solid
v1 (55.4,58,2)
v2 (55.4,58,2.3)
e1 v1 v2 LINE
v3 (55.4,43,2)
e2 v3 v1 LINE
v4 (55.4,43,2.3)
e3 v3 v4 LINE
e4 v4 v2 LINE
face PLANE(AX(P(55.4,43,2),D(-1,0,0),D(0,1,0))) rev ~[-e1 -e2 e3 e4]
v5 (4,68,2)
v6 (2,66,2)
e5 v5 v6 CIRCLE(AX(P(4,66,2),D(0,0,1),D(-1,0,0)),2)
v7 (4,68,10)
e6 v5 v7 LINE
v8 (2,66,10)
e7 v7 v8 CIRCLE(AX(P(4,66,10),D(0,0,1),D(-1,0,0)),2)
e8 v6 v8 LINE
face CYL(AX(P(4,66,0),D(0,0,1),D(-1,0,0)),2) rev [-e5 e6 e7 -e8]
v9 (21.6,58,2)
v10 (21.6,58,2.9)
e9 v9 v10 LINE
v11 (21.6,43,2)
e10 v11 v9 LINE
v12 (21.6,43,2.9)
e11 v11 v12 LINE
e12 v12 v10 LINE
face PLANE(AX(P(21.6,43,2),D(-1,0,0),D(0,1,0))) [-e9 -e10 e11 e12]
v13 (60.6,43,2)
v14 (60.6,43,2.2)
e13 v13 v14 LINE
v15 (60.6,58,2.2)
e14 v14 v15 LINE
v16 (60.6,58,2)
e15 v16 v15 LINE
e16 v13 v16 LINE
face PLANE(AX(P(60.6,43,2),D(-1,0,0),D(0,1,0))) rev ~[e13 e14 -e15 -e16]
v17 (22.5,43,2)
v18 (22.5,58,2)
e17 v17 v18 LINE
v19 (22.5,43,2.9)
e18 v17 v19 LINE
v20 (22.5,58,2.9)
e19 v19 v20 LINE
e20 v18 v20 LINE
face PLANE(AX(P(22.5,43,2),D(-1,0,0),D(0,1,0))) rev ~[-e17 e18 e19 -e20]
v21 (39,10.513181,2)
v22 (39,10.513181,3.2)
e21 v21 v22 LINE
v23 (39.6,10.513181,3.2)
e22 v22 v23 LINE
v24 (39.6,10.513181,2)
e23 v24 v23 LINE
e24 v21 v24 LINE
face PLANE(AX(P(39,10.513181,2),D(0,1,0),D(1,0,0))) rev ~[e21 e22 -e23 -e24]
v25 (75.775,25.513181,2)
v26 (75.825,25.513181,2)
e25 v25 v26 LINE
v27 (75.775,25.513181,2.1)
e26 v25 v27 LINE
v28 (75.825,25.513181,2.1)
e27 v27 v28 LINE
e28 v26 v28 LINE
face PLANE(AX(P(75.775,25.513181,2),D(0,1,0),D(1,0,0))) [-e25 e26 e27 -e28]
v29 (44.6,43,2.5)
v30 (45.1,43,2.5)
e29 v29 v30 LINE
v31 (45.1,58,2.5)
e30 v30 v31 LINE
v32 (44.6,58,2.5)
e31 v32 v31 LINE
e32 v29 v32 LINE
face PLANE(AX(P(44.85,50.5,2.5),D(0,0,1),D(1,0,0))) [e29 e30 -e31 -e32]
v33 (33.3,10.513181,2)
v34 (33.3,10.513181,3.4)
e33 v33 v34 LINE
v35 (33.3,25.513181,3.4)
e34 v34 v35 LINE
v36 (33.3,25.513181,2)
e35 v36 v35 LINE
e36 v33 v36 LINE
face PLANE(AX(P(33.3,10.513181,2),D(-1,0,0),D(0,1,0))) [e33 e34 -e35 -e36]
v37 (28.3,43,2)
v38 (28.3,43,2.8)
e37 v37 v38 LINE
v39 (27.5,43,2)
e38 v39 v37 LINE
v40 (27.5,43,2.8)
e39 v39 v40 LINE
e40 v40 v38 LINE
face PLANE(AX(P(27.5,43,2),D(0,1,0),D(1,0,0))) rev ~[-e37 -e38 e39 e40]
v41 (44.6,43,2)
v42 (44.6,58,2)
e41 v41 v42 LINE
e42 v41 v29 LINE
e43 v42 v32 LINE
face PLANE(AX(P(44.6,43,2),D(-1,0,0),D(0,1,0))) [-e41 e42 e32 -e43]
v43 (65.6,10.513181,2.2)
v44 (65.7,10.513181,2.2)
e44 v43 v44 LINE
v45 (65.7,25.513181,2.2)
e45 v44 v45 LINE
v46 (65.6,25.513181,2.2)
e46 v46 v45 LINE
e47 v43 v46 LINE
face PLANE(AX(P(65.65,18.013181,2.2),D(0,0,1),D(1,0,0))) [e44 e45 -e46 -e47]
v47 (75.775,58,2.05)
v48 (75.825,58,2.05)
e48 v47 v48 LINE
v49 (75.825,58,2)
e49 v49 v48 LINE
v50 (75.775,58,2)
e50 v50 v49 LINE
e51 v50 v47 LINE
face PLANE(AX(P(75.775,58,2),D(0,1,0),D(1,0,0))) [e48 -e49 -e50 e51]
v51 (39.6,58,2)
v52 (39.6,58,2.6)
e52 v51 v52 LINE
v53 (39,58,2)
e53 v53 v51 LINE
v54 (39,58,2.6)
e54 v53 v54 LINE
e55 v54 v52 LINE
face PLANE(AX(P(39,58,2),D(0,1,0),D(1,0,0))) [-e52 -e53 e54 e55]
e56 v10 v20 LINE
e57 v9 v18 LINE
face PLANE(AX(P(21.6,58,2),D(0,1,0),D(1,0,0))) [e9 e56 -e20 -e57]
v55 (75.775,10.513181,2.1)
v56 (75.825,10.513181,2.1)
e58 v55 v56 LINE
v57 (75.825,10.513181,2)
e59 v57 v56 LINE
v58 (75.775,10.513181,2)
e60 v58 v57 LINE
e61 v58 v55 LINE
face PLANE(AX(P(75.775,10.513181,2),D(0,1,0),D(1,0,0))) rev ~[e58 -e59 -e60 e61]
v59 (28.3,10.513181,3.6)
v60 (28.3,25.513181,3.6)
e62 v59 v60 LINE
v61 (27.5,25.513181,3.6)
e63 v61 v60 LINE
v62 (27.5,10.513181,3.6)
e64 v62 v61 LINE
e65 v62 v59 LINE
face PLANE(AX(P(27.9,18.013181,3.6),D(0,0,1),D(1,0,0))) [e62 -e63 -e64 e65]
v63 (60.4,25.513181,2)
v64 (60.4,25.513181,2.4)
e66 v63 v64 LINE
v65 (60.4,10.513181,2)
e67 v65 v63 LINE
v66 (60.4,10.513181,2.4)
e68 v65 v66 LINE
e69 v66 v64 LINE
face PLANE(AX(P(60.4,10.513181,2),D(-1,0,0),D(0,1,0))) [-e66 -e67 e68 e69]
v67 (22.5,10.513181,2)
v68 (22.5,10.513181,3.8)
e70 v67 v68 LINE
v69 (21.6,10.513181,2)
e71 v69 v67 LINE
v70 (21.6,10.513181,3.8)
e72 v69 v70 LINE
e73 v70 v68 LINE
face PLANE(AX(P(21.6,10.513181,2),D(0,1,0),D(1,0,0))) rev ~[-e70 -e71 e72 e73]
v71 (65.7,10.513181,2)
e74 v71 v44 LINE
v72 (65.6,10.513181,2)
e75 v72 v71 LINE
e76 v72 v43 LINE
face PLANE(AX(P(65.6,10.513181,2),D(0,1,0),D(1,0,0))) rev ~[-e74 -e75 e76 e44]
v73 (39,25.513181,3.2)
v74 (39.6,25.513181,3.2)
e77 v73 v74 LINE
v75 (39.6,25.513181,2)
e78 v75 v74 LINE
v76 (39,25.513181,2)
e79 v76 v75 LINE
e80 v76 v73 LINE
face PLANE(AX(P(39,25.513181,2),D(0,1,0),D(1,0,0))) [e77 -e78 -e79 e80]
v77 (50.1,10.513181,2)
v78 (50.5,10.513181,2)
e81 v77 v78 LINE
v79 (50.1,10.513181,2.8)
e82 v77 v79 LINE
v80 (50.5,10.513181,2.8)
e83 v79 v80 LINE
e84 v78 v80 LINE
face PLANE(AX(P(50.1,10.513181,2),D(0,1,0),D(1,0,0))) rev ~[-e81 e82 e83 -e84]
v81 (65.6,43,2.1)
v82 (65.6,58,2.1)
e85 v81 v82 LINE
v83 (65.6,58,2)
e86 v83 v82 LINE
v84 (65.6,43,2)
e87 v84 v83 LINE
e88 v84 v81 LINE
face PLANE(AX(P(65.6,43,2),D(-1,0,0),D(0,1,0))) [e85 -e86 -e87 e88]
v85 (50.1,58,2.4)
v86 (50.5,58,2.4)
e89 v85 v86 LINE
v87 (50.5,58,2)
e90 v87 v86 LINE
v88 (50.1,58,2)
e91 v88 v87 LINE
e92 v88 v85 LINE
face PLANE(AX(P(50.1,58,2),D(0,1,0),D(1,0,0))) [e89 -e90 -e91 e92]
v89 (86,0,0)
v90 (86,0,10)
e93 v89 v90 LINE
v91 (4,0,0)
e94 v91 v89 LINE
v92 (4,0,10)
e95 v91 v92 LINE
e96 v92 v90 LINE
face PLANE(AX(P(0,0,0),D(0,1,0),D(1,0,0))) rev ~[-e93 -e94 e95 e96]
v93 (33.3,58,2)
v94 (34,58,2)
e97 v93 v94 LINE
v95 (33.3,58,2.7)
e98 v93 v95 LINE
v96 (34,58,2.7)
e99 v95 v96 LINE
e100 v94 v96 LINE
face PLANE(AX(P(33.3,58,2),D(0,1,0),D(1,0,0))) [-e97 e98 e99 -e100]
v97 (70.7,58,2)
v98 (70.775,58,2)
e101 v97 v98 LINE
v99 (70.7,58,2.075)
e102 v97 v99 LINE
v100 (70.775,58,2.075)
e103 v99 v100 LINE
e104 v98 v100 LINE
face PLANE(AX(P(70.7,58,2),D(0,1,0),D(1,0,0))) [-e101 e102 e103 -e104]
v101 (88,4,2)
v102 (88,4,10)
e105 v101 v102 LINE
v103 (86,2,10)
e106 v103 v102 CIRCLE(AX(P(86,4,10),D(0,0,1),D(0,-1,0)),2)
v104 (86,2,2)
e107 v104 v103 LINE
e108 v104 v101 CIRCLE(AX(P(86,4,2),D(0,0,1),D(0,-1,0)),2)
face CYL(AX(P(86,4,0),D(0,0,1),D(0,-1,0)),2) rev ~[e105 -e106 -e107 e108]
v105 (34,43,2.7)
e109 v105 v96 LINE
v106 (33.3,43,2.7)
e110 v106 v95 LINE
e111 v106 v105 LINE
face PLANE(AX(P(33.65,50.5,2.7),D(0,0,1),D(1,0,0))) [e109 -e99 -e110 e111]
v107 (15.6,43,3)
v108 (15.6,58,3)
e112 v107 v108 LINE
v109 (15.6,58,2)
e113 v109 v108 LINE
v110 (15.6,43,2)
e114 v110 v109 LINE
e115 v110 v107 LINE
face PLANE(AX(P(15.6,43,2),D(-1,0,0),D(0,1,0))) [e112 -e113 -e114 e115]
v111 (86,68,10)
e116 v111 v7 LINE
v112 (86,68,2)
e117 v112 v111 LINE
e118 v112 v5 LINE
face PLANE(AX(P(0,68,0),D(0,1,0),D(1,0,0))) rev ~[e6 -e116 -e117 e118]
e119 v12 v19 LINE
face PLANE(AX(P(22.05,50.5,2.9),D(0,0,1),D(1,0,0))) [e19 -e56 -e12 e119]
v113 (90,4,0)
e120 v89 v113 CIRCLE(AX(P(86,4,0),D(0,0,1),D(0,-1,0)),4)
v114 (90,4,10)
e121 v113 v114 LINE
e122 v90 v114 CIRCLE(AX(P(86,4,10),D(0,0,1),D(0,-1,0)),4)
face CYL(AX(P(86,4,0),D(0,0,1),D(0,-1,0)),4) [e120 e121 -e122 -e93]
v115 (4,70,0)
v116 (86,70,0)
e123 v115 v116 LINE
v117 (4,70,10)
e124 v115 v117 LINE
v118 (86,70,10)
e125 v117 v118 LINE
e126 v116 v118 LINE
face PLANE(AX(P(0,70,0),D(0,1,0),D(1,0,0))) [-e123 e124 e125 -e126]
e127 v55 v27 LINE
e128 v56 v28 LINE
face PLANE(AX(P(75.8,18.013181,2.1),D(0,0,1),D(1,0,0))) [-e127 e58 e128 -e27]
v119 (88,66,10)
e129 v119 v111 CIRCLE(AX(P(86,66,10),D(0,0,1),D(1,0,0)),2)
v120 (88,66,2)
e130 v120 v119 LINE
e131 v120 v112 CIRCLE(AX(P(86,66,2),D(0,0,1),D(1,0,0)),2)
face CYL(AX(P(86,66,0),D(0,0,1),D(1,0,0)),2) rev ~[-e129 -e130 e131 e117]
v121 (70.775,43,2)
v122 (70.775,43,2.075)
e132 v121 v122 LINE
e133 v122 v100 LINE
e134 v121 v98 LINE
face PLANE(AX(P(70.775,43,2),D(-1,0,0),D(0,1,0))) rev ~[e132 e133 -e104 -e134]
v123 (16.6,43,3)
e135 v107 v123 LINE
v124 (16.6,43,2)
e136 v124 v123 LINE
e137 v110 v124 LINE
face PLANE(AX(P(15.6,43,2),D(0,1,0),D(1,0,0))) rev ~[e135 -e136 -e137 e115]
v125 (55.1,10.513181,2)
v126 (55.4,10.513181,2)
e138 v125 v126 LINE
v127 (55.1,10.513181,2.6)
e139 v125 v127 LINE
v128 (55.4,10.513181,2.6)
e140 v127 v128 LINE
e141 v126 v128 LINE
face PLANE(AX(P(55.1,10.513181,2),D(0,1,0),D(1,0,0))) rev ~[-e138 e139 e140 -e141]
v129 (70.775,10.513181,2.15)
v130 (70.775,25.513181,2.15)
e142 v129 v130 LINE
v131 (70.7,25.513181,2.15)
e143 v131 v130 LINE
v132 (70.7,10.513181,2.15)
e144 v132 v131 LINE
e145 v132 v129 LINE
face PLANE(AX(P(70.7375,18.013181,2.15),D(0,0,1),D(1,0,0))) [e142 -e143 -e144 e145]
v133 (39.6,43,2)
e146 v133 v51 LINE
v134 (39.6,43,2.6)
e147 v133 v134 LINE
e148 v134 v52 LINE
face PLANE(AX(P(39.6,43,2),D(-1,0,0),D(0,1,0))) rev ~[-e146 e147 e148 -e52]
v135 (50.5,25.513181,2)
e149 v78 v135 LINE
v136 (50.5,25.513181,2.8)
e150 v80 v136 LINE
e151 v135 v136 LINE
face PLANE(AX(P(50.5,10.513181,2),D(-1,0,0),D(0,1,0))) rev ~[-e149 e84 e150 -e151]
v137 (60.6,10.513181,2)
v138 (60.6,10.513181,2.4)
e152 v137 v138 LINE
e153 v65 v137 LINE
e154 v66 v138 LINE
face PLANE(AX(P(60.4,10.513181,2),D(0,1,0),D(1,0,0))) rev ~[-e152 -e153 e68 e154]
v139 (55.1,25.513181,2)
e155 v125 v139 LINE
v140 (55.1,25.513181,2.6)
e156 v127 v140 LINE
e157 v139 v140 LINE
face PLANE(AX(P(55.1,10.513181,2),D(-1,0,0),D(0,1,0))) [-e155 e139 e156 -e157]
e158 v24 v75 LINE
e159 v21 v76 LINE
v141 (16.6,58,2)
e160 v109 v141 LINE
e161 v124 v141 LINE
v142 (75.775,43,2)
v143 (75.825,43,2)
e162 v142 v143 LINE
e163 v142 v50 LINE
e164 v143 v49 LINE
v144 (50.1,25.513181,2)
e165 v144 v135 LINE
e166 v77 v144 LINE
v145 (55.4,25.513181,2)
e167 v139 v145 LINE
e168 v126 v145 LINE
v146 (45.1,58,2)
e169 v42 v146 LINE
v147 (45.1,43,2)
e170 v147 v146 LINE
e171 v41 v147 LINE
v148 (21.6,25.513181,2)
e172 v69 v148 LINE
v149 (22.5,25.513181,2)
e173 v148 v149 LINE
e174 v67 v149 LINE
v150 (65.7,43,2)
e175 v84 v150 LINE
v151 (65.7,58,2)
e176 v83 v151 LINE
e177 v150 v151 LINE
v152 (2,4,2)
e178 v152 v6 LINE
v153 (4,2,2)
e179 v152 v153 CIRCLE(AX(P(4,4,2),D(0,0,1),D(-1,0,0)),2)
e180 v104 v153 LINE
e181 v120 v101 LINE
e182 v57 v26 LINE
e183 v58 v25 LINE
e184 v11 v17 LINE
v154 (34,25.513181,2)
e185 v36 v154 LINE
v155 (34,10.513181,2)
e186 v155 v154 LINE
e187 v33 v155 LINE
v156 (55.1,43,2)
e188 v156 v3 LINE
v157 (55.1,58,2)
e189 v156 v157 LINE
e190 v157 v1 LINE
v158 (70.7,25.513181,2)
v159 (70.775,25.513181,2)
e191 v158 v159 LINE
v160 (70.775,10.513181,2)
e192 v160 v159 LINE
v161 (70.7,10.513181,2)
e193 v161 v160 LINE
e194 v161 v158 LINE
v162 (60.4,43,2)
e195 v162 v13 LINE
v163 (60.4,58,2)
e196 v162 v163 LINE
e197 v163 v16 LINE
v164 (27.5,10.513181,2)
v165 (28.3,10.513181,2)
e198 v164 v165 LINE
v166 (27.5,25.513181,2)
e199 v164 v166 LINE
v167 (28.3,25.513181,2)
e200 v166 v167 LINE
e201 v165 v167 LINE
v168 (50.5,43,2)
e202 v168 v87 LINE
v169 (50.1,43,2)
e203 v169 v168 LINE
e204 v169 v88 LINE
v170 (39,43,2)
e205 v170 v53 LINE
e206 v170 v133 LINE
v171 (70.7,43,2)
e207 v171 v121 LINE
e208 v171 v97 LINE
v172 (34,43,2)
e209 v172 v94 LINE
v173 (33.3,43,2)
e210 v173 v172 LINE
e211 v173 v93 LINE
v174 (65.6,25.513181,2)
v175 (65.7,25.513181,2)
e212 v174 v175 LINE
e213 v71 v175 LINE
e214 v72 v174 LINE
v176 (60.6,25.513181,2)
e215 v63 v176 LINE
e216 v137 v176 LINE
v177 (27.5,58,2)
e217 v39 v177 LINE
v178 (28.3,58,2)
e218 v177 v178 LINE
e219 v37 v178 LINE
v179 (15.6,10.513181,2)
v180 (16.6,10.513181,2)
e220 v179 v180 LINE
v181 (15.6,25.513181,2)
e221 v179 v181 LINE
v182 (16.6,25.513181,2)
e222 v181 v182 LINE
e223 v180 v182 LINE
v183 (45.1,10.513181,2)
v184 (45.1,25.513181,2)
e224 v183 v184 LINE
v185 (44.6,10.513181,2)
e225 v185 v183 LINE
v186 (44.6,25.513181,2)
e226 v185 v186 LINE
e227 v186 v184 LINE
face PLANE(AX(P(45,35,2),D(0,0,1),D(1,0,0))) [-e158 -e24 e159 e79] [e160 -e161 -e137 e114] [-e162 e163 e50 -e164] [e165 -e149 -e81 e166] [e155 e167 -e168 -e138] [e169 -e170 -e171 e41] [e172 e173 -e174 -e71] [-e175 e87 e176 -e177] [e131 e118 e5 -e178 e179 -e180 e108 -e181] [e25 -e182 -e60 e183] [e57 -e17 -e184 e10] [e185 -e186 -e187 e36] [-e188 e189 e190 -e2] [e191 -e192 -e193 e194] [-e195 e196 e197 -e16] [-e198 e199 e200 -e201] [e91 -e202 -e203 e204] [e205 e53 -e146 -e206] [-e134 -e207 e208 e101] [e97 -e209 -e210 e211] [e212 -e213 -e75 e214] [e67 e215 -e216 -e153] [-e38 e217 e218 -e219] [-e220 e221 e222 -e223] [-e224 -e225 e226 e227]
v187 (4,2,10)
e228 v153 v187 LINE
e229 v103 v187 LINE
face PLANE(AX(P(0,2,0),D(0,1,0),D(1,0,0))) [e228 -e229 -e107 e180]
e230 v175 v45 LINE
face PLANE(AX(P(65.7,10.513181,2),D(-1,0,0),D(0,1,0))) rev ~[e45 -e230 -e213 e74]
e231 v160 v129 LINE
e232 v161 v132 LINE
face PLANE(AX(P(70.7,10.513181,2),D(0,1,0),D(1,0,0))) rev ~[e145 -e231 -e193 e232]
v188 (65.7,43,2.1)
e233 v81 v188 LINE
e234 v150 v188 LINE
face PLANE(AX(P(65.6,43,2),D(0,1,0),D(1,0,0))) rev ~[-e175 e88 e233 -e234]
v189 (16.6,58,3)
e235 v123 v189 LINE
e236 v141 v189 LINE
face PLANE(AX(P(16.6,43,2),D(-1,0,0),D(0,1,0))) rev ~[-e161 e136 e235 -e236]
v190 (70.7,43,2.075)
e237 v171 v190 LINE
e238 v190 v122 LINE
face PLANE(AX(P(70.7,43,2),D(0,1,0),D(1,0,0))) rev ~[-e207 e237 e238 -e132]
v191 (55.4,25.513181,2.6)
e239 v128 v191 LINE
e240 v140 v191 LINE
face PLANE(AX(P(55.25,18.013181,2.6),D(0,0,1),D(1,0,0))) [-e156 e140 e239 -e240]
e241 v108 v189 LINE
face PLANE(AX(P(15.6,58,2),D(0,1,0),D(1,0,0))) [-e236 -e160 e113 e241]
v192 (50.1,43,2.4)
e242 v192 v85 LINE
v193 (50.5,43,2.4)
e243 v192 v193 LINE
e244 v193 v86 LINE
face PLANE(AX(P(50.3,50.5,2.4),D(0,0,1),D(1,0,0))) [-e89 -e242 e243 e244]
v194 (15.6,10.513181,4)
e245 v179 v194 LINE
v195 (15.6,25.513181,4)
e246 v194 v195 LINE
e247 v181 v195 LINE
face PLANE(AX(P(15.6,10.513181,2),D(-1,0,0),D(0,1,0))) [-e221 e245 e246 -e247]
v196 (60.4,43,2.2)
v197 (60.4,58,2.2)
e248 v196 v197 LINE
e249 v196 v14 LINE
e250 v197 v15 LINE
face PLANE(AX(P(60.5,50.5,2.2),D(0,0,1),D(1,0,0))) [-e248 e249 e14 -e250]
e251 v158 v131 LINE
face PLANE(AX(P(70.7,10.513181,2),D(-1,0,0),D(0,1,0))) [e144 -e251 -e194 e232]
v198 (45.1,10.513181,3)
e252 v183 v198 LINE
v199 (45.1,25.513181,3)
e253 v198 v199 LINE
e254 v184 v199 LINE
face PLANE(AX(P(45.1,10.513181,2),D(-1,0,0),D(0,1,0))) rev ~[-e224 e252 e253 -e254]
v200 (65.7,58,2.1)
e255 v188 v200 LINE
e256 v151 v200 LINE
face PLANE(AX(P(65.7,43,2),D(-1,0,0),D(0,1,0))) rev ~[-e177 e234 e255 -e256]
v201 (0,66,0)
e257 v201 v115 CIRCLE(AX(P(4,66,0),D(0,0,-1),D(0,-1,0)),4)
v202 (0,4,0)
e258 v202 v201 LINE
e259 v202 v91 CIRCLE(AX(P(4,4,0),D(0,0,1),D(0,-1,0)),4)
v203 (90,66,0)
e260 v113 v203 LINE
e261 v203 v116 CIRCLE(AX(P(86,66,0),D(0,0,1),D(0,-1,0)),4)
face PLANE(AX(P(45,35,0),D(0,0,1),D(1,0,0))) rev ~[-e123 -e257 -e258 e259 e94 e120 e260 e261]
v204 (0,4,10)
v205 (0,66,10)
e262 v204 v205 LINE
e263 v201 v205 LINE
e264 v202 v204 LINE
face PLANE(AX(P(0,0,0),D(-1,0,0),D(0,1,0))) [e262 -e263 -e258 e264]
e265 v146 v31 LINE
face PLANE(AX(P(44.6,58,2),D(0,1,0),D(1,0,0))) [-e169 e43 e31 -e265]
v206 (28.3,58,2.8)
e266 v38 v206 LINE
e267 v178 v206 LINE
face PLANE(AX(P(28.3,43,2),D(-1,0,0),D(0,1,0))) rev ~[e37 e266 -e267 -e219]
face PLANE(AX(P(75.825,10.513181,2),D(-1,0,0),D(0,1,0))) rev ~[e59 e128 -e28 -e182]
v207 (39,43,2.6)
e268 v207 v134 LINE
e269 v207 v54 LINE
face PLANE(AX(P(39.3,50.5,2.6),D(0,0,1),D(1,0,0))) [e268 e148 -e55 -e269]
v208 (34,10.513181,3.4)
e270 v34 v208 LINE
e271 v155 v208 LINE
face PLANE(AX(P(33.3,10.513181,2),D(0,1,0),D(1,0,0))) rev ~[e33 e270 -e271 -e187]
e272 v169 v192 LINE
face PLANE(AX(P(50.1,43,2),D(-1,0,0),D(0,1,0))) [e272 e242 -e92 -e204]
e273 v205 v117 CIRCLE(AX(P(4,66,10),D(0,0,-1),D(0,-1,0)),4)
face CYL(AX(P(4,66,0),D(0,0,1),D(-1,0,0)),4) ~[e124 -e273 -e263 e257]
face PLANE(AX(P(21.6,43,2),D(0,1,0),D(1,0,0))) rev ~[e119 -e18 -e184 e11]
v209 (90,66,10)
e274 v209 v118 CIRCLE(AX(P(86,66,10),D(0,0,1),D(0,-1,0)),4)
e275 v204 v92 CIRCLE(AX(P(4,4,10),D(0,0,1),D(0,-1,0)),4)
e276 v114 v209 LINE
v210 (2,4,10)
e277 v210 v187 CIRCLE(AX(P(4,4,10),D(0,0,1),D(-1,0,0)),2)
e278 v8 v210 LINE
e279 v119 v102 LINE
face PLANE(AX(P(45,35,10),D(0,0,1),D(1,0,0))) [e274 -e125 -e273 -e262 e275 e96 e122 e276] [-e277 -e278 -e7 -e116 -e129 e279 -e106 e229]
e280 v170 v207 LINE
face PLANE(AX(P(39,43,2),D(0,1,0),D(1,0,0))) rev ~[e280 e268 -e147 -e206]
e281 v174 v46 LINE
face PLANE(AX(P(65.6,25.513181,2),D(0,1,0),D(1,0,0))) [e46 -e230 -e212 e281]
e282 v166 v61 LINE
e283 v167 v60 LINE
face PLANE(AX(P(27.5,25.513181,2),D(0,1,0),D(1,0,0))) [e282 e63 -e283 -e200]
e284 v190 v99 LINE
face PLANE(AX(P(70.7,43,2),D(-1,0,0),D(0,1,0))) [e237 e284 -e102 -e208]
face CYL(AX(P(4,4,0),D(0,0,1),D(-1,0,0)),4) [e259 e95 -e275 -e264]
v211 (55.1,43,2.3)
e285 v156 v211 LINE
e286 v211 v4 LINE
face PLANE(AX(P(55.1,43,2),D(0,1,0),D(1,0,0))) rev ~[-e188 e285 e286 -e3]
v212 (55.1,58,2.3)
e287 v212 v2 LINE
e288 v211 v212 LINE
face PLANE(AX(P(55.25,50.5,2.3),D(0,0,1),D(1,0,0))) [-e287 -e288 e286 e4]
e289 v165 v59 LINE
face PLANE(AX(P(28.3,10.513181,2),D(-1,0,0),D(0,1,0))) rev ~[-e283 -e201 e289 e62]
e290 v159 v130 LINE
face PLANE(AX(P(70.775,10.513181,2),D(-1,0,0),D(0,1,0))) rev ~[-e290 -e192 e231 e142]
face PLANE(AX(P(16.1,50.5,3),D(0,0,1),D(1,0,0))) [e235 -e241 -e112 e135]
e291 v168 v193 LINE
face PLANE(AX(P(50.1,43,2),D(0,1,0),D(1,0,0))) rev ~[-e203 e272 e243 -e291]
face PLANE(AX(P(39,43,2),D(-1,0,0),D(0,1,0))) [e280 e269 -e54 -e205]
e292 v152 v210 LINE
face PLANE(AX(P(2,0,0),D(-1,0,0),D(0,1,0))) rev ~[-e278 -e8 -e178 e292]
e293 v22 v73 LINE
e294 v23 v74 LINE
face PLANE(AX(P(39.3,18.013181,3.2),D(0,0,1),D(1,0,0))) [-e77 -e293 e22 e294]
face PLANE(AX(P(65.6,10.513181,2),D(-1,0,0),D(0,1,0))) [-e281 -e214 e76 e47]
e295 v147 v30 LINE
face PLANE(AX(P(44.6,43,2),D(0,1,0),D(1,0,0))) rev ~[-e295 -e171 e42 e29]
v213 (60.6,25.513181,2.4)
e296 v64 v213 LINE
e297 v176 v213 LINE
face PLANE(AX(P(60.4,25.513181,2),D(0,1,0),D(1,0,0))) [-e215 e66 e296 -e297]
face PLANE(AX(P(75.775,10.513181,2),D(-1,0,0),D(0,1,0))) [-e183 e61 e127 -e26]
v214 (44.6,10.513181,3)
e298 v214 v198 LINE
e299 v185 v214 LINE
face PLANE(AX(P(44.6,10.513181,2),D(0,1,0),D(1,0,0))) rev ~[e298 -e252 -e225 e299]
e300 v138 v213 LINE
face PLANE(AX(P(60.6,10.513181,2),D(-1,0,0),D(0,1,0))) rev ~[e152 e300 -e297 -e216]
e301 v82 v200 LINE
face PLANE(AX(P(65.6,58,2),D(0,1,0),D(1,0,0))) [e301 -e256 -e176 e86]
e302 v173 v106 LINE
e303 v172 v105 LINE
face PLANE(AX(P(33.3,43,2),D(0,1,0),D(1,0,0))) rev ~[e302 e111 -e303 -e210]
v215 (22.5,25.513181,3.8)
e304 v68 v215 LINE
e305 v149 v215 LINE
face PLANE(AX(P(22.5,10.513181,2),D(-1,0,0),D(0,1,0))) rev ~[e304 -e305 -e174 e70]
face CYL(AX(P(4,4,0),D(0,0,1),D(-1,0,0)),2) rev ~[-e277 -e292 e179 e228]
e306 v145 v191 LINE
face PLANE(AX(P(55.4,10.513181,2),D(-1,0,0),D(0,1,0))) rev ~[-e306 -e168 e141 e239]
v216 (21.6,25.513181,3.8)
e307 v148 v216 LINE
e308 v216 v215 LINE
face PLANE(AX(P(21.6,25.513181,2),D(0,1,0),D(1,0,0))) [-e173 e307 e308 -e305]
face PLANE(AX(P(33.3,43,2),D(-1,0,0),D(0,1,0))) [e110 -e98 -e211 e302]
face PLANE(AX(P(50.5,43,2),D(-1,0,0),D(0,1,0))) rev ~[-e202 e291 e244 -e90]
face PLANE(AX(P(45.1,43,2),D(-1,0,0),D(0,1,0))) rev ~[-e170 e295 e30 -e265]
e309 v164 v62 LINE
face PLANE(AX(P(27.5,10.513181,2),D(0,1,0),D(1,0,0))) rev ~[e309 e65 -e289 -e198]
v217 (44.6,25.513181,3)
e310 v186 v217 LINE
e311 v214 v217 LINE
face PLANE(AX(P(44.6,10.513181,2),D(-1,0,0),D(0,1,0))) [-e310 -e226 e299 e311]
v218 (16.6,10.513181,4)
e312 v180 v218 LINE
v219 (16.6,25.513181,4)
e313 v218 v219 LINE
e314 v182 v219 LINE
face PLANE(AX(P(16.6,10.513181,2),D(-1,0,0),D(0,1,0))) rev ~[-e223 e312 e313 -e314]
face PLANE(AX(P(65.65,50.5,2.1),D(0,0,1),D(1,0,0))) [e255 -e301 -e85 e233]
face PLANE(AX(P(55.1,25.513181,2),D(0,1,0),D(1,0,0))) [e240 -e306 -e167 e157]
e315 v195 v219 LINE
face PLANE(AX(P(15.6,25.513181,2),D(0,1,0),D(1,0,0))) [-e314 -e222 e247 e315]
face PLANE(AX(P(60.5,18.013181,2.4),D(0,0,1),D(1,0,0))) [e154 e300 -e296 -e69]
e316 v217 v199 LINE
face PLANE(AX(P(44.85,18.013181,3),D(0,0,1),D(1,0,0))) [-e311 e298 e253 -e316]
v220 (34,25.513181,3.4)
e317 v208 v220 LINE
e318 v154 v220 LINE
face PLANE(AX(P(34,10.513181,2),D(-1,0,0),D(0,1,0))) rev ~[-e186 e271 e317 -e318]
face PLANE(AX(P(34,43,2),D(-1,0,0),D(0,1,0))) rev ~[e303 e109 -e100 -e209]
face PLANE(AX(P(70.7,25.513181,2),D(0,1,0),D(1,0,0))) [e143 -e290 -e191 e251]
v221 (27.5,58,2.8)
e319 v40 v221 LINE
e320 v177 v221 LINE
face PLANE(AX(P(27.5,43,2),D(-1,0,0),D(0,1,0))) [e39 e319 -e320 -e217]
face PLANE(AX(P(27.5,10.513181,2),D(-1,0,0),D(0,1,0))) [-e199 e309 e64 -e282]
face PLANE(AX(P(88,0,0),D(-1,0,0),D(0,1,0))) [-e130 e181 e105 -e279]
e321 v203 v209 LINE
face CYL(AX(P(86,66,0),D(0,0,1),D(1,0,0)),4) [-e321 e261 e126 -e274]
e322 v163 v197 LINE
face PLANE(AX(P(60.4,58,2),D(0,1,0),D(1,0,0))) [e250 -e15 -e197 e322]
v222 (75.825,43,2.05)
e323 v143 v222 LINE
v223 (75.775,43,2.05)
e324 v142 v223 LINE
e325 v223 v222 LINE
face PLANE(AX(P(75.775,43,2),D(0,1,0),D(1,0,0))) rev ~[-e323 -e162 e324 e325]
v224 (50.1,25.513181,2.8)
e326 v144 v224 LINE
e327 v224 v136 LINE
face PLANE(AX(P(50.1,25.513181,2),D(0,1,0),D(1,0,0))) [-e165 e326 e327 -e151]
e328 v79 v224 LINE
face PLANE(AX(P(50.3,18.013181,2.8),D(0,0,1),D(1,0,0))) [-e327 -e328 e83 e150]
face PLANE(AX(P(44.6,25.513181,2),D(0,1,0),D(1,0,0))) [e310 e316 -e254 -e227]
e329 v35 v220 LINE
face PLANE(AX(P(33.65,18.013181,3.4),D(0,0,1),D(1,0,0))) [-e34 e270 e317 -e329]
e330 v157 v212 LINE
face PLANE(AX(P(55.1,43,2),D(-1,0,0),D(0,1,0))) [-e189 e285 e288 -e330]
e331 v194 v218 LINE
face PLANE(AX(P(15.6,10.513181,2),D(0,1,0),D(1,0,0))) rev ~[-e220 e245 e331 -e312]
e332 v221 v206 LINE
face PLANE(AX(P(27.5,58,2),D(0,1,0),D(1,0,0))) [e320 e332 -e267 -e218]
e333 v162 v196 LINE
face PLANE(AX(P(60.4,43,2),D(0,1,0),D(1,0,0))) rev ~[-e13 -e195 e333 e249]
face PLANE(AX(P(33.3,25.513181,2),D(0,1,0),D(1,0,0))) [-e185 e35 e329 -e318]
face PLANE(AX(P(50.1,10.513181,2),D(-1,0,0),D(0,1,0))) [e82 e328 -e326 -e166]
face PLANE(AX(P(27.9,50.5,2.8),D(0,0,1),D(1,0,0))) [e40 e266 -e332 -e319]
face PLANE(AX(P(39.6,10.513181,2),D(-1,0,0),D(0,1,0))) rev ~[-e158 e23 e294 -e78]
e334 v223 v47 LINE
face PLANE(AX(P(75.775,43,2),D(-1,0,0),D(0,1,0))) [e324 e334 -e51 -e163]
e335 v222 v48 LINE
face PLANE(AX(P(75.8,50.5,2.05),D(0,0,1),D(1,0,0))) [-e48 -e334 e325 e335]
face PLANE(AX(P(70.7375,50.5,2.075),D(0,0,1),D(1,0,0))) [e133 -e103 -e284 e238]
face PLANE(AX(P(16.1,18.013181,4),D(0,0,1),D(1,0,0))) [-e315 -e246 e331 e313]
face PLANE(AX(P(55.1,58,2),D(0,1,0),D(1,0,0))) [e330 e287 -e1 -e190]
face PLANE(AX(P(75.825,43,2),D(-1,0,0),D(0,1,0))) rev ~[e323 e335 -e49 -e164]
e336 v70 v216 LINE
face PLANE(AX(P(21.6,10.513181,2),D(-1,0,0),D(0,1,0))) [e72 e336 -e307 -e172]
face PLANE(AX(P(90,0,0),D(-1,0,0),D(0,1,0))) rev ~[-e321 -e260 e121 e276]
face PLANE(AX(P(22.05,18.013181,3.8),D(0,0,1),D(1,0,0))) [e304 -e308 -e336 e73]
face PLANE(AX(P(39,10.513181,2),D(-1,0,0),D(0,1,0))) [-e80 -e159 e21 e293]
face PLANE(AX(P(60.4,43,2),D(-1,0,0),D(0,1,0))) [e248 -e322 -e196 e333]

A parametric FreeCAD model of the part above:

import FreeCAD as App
import Part
import Sketcher
Q = App.Units.Quantity


def edges_at(feature, points):
    """Names of the edges that pass closest to the given points."""
    edges = feature.Shape.Edges
    near = lambda p: min(range(len(edges)), key=lambda i: edges[i].distToShape(Part.Vertex(*p))[0])
    return sorted({f"Edge{near(p) + 1}" for p in points})


def faces_at(feature, points):
    """Names of the faces that lie closest to the given points."""
    faces = feature.Shape.Faces
    near = lambda p: min(range(len(faces)), key=lambda i: faces[i].distToShape(Part.Vertex(*p))[0])
    return sorted({f"Face{near(p) + 1}" for p in points})


def add_polygon(sketch, points):
    """Adds a closed chain of lines whose ends are joined by coincident constraints."""
    first, n = sketch.GeometryCount, len(points)
    for a, b in zip(points, points[1:] + points[:1]):
        sketch.addGeometry(Part.LineSegment(App.Vector(*a, 0), App.Vector(*b, 0)), False)
    for i in range(n):
        sketch.addConstraint(Sketcher.Constraint("Coincident", first + i, 2, first + (i + 1) % n, 1))

doc = App.newDocument("Part")
body = doc.addObject("PartDesign::Body", "Body")

# Sketch on XY plane
sketch1 = body.newObject("Sketcher::SketchObject", "Sketch")
sketch1.AttachmentSupport = (doc.getObject("XY_Plane"), [""])
sketch1.MapMode = "FlatFace"
add_polygon(sketch1, [(0, 70), (0, 0), (90, 0), (90, 70)])  # lines 0-3
sketch1.addConstraint([
    Sketcher.Constraint("Vertical", 0),
    Sketcher.Constraint("Horizontal", 1),
    Sketcher.Constraint("Vertical", 2),
    Sketcher.Constraint("Horizontal", 3),
    Sketcher.Constraint("Coincident", 0, 2, -1, 1),
    Sketcher.Constraint("DistanceX", 1, 1, 1, 2, Q("90 mm")),
    Sketcher.Constraint("DistanceY", 0, 2, 0, 1, Q("70 mm")),
])
pad1 = body.newObject("PartDesign::Pad", "Pad")
pad1.Profile = sketch1
pad1.Length = 10
doc.recompute()

fillet = body.newObject("PartDesign::Fillet", "Fillet")
fillet.Base = (pad1, edges_at(pad1, [
    (0, 70, 5),
    (90, 70, 5),
    (90, 0, 5),
    (0, 0, 5),
]))
fillet.Radius = 4
doc.recompute()

thickness = body.newObject("PartDesign::Thickness", "Thickness")
thickness.Base = (fillet, faces_at(fillet, [(45, 35, 10)]))
thickness.Value = 2
thickness.Reversed = True
thickness.Join = "Intersection"

# Sketch on XY plane
sketch2 = body.newObject("Sketcher::SketchObject", "Sketch001")
sketch2.AttachmentSupport = (doc.getObject("XY_Plane"), [""])
sketch2.MapMode = "FlatFace"
sketch2.AttachmentOffset = App.Placement(App.Vector(0, 0, 2), App.Rotation())
add_polygon(sketch2, [(15.6, 58), (15.6, 43), (16.6, 43), (16.6, 58)])  # lines 0-3
sketch2.addConstraint([
    Sketcher.Constraint("Vertical", 0),
    Sketcher.Constraint("Horizontal", 1),
    Sketcher.Constraint("Vertical", 2),
    Sketcher.Constraint("Horizontal", 3),
    Sketcher.Constraint("DistanceX", 1, 1, 1, 2, Q("1 mm")),
    Sketcher.Constraint("DistanceY", 0, 2, 0, 1, Q("15 mm")),
    Sketcher.Constraint("DistanceY", -1, 1, 0, 2, Q("43 mm")),
    Sketcher.Constraint("DistanceX", -1, 1, 0, 2, Q("15.6 mm")),
])
pad2 = body.newObject("PartDesign::Pad", "Pad001")
pad2.Profile = sketch2
pad2.Length = 1

# Sketch on XY plane
sketch3 = body.newObject("Sketcher::SketchObject", "Sketch002")
sketch3.AttachmentSupport = (doc.getObject("XY_Plane"), [""])
sketch3.MapMode = "FlatFace"
sketch3.AttachmentOffset = App.Placement(App.Vector(0, 0, 2), App.Rotation())
add_polygon(sketch3, [(21.6, 58), (21.6, 43), (22.5, 43), (22.5, 58)])  # lines 0-3
sketch3.addConstraint([
    Sketcher.Constraint("Vertical", 0),
    Sketcher.Constraint("Horizontal", 1),
    Sketcher.Constraint("Vertical", 2),
    Sketcher.Constraint("Horizontal", 3),
    Sketcher.Constraint("DistanceY", 0, 2, 0, 1, Q("15 mm")),
    Sketcher.Constraint("DistanceX", 1, 1, 1, 2, Q("0.9 mm")),
    Sketcher.Constraint("DistanceY", -1, 1, 0, 2, Q("43 mm")),
    Sketcher.Constraint("DistanceX", -1, 1, 0, 2, Q("21.6 mm")),
])
pad3 = body.newObject("PartDesign::Pad", "Pad002")
pad3.Profile = sketch3
pad3.Length = 0.9

# Sketch on XY plane
sketch4 = body.newObject("Sketcher::SketchObject", "Sketch003")
sketch4.AttachmentSupport = (doc.getObject("XY_Plane"), [""])
sketch4.MapMode = "FlatFace"
sketch4.AttachmentOffset = App.Placement(App.Vector(0, 0, 2), App.Rotation())
add_polygon(sketch4, [(27.5, 58), (27.5, 43), (28.3, 43), (28.3, 58)])  # lines 0-3
sketch4.addConstraint([
    Sketcher.Constraint("Vertical", 0),
    Sketcher.Constraint("Horizontal", 1),
    Sketcher.Constraint("Vertical", 2),
    Sketcher.Constraint("Horizontal", 3),
    Sketcher.Constraint("DistanceY", 0, 2, 0, 1, Q("15 mm")),
    Sketcher.Constraint("DistanceX", 1, 1, 1, 2, Q("0.8 mm")),
    Sketcher.Constraint("DistanceY", -1, 1, 0, 2, Q("43 mm")),
    Sketcher.Constraint("DistanceX", -1, 1, 0, 2, Q("27.5 mm")),
])
pad4 = body.newObject("PartDesign::Pad", "Pad003")
pad4.Profile = sketch4
pad4.Length = 0.8

# Sketch on XY plane
sketch5 = body.newObject("Sketcher::SketchObject", "Sketch004")
sketch5.AttachmentSupport = (doc.getObject("XY_Plane"), [""])
sketch5.MapMode = "FlatFace"
sketch5.AttachmentOffset = App.Placement(App.Vector(0, 0, 2), App.Rotation())
add_polygon(sketch5, [(33.3, 58), (33.3, 43), (34, 43), (34, 58)])  # lines 0-3
sketch5.addConstraint([
    Sketcher.Constraint("Vertical", 0),
    Sketcher.Constraint("Horizontal", 1),
    Sketcher.Constraint("Vertical", 2),
    Sketcher.Constraint("Horizontal", 3),
    Sketcher.Constraint("DistanceY", 0, 2, 0, 1, Q("15 mm")),
    Sketcher.Constraint("DistanceX", 1, 1, 1, 2, Q("0.7 mm")),
    Sketcher.Constraint("DistanceY", -1, 1, 0, 2, Q("43 mm")),
    Sketcher.Constraint("DistanceX", -1, 1, 1, 2, Q("34 mm")),
])
pad5 = body.newObject("PartDesign::Pad", "Pad004")
pad5.Profile = sketch5
pad5.Length = 0.7

# Sketch on XY plane
sketch6 = body.newObject("Sketcher::SketchObject", "Sketch005")
sketch6.AttachmentSupport = (doc.getObject("XY_Plane"), [""])
sketch6.MapMode = "FlatFace"
sketch6.AttachmentOffset = App.Placement(App.Vector(0, 0, 2), App.Rotation())
add_polygon(sketch6, [(39, 58), (39, 43), (39.6, 43), (39.6, 58)])  # lines 0-3
sketch6.addConstraint([
    Sketcher.Constraint("Vertical", 0),
    Sketcher.Constraint("Horizontal", 1),
    Sketcher.Constraint("Vertical", 2),
    Sketcher.Constraint("Horizontal", 3),
    Sketcher.Constraint("DistanceY", 0, 2, 0, 1, Q("15 mm")),
    Sketcher.Constraint("DistanceX", 1, 1, 1, 2, Q("0.6 mm")),
    Sketcher.Constraint("DistanceX", -1, 1, 0, 2, Q("39 mm")),
    Sketcher.Constraint("DistanceY", -1, 1, 0, 2, Q("43 mm")),
])
pad6 = body.newObject("PartDesign::Pad", "Pad005")
pad6.Profile = sketch6
pad6.Length = 0.6

# Sketch on XY plane
sketch7 = body.newObject("Sketcher::SketchObject", "Sketch006")
sketch7.AttachmentSupport = (doc.getObject("XY_Plane"), [""])
sketch7.MapMode = "FlatFace"
sketch7.AttachmentOffset = App.Placement(App.Vector(0, 0, 2), App.Rotation())
add_polygon(sketch7, [(44.6, 58), (44.6, 43), (45.1, 43), (45.1, 58)])  # lines 0-3
sketch7.addConstraint([
    Sketcher.Constraint("Vertical", 0),
    Sketcher.Constraint("Horizontal", 1),
    Sketcher.Constraint("Vertical", 2),
    Sketcher.Constraint("Horizontal", 3),
    Sketcher.Constraint("DistanceY", 0, 2, 0, 1, Q("15 mm")),
    Sketcher.Constraint("DistanceX", 1, 1, 1, 2, Q("0.5 mm")),
    Sketcher.Constraint("DistanceY", -1, 1, 0, 2, Q("43 mm")),
    Sketcher.Constraint("DistanceX", -1, 1, 0, 2, Q("44.6 mm")),
])
pad7 = body.newObject("PartDesign::Pad", "Pad006")
pad7.Profile = sketch7
pad7.Length = 0.5

# Sketch on XY plane
sketch8 = body.newObject("Sketcher::SketchObject", "Sketch007")
sketch8.AttachmentSupport = (doc.getObject("XY_Plane"), [""])
sketch8.MapMode = "FlatFace"
sketch8.AttachmentOffset = App.Placement(App.Vector(0, 0, 2), App.Rotation())
add_polygon(sketch8, [(50.1, 58), (50.1, 43), (50.5, 43), (50.5, 58)])  # lines 0-3
sketch8.addConstraint([
    Sketcher.Constraint("Vertical", 0),
    Sketcher.Constraint("Horizontal", 1),
    Sketcher.Constraint("Vertical", 2),
    Sketcher.Constraint("Horizontal", 3),
    Sketcher.Constraint("DistanceY", 0, 2, 0, 1, Q("15 mm")),
    Sketcher.Constraint("DistanceX", 1, 1, 1, 2, Q("0.4 mm")),
    Sketcher.Constraint("DistanceY", -1, 1, 0, 2, Q("43 mm")),
    Sketcher.Constraint("DistanceX", -1, 1, 0, 2, Q("50.1 mm")),
])
pad8 = body.newObject("PartDesign::Pad", "Pad007")
pad8.Profile = sketch8
pad8.Length = 0.4

# Sketch on XY plane
sketch9 = body.newObject("Sketcher::SketchObject", "Sketch008")
sketch9.AttachmentSupport = (doc.getObject("XY_Plane"), [""])
sketch9.MapMode = "FlatFace"
sketch9.AttachmentOffset = App.Placement(App.Vector(0, 0, 2), App.Rotation())
add_polygon(sketch9, [(55.1, 58), (55.1, 43), (55.4, 43), (55.4, 58)])  # lines 0-3
sketch9.addConstraint([
    Sketcher.Constraint("Vertical", 0),
    Sketcher.Constraint("Horizontal", 1),
    Sketcher.Constraint("Vertical", 2),
    Sketcher.Constraint("Horizontal", 3),
    Sketcher.Constraint("DistanceY", 0, 2, 0, 1, Q("15 mm")),
    Sketcher.Constraint("DistanceX", 1, 1, 1, 2, Q("0.3 mm")),
    Sketcher.Constraint("DistanceY", -1, 1, 0, 2, Q("43 mm")),
    Sketcher.Constraint("DistanceX", -1, 1, 0, 2, Q("55.1 mm")),
])
pad9 = body.newObject("PartDesign::Pad", "Pad008")
pad9.Profile = sketch9
pad9.Length = 0.3

# Sketch on XY plane
sketch10 = body.newObject("Sketcher::SketchObject", "Sketch009")
sketch10.AttachmentSupport = (doc.getObject("XY_Plane"), [""])
sketch10.MapMode = "FlatFace"
sketch10.AttachmentOffset = App.Placement(App.Vector(0, 0, 2), App.Rotation())
add_polygon(sketch10, [(60.4, 58), (60.4, 43), (60.6, 43), (60.6, 58)])  # lines 0-3
sketch10.addConstraint([
    Sketcher.Constraint("Vertical", 0),
    Sketcher.Constraint("Horizontal", 1),
    Sketcher.Constraint("Vertical", 2),
    Sketcher.Constraint("Horizontal", 3),
    Sketcher.Constraint("DistanceY", 0, 2, 0, 1, Q("15 mm")),
    Sketcher.Constraint("DistanceX", 1, 1, 1, 2, Q("0.2 mm")),
    Sketcher.Constraint("DistanceY", -1, 1, 0, 2, Q("43 mm")),
    Sketcher.Constraint("DistanceX", -1, 1, 0, 2, Q("60.4 mm")),
])
pad10 = body.newObject("PartDesign::Pad", "Pad009")
pad10.Profile = sketch10
pad10.Length = 0.2

# Sketch on XY plane
sketch11 = body.newObject("Sketcher::SketchObject", "Sketch010")
sketch11.AttachmentSupport = (doc.getObject("XY_Plane"), [""])
sketch11.MapMode = "FlatFace"
sketch11.AttachmentOffset = App.Placement(App.Vector(0, 0, 2), App.Rotation())
add_polygon(sketch11, [(65.6, 58), (65.6, 43), (65.7, 43), (65.7, 58)])  # lines 0-3
sketch11.addConstraint([
    Sketcher.Constraint("Vertical", 0),
    Sketcher.Constraint("Horizontal", 1),
    Sketcher.Constraint("Vertical", 2),
    Sketcher.Constraint("Horizontal", 3),
    Sketcher.Constraint("DistanceY", 0, 2, 0, 1, Q("15 mm")),
    Sketcher.Constraint("DistanceX", 1, 1, 1, 2, Q("0.1 mm")),
    Sketcher.Constraint("DistanceY", -1, 1, 0, 2, Q("43 mm")),
    Sketcher.Constraint("DistanceX", -1, 1, 0, 2, Q("65.6 mm")),
])
pad11 = body.newObject("PartDesign::Pad", "Pad010")
pad11.Profile = sketch11
pad11.Length = 0.1

# Sketch on XY plane
sketch12 = body.newObject("Sketcher::SketchObject", "Sketch011")
sketch12.AttachmentSupport = (doc.getObject("XY_Plane"), [""])
sketch12.MapMode = "FlatFace"
sketch12.AttachmentOffset = App.Placement(App.Vector(0, 0, 2), App.Rotation())
add_polygon(sketch12, [(70.7, 58), (70.7, 43), (70.775, 43), (70.775, 58)])  # lines 0-3
sketch12.addConstraint([
    Sketcher.Constraint("Vertical", 0),
    Sketcher.Constraint("Horizontal", 1),
    Sketcher.Constraint("Vertical", 2),
    Sketcher.Constraint("Horizontal", 3),
    Sketcher.Constraint("DistanceY", 0, 2, 0, 1, Q("15 mm")),
    Sketcher.Constraint("DistanceY", -1, 1, 0, 2, Q("43 mm")),
    Sketcher.Constraint("DistanceX", -1, 1, 0, 2, Q("70.7 mm")),
    Sketcher.Constraint("DistanceX", 1, 1, 1, 2, Q("0.075 mm")),
])
pad12 = body.newObject("PartDesign::Pad", "Pad011")
pad12.Profile = sketch12
pad12.Length = 0.075

# Sketch on XY plane
sketch13 = body.newObject("Sketcher::SketchObject", "Sketch012")
sketch13.AttachmentSupport = (doc.getObject("XY_Plane"), [""])
sketch13.MapMode = "FlatFace"
sketch13.AttachmentOffset = App.Placement(App.Vector(0, 0, 2), App.Rotation())
add_polygon(sketch13, [(75.775, 58), (75.775, 43), (75.825, 43), (75.825, 58)])  # lines 0-3
sketch13.addConstraint([
    Sketcher.Constraint("Vertical", 0),
    Sketcher.Constraint("Horizontal", 1),
    Sketcher.Constraint("Vertical", 2),
    Sketcher.Constraint("Horizontal", 3),
    Sketcher.Constraint("DistanceY", 0, 2, 0, 1, Q("15 mm")),
    Sketcher.Constraint("DistanceY", -1, 1, 0, 2, Q("43 mm")),
    Sketcher.Constraint("DistanceX", 1, 1, 1, 2, Q("0.05 mm")),
    Sketcher.Constraint("DistanceX", -1, 1, 0, 2, Q("75.775 mm")),
])
pad13 = body.newObject("PartDesign::Pad", "Pad012")
pad13.Profile = sketch13
pad13.Length = 0.05

# Sketch on XY plane
sketch14 = body.newObject("Sketcher::SketchObject", "Sketch013")
sketch14.AttachmentSupport = (doc.getObject("XY_Plane"), [""])
sketch14.MapMode = "FlatFace"
sketch14.AttachmentOffset = App.Placement(App.Vector(0, 0, 2), App.Rotation())
add_polygon(sketch14, [(15.6, 25.513181), (15.6, 10.513181), (16.6, 10.513181), (16.6, 25.513181)])  # lines 0-3
sketch14.addConstraint([
    Sketcher.Constraint("Vertical", 0),
    Sketcher.Constraint("Horizontal", 1),
    Sketcher.Constraint("Vertical", 2),
    Sketcher.Constraint("Horizontal", 3),
    Sketcher.Constraint("DistanceX", 1, 1, 1, 2, Q("1 mm")),
    Sketcher.Constraint("DistanceY", 0, 2, 0, 1, Q("15 mm")),
    Sketcher.Constraint("DistanceX", -1, 1, 0, 2, Q("15.6 mm")),
    Sketcher.Constraint("DistanceY", -1, 1, 0, 2, Q("10.513181 mm")),
])
pad14 = body.newObject("PartDesign::Pad", "Pad013")
pad14.Profile = sketch14
pad14.Length = 2

# Sketch on XY plane
sketch15 = body.newObject("Sketcher::SketchObject", "Sketch014")
sketch15.AttachmentSupport = (doc.getObject("XY_Plane"), [""])
sketch15.MapMode = "FlatFace"
sketch15.AttachmentOffset = App.Placement(App.Vector(0, 0, 2), App.Rotation())
add_polygon(sketch15, [(21.6, 25.513181), (21.6, 10.513181), (22.5, 10.513181), (22.5, 25.513181)])  # lines 0-3
sketch15.addConstraint([
    Sketcher.Constraint("Vertical", 0),
    Sketcher.Constraint("Horizontal", 1),
    Sketcher.Constraint("Vertical", 2),
    Sketcher.Constraint("Horizontal", 3),
    Sketcher.Constraint("DistanceY", 0, 2, 0, 1, Q("15 mm")),
    Sketcher.Constraint("DistanceX", 1, 1, 1, 2, Q("0.9 mm")),
    Sketcher.Constraint("DistanceX", -1, 1, 0, 2, Q("21.6 mm")),
    Sketcher.Constraint("DistanceY", -1, 1, 0, 2, Q("10.513181 mm")),
])
pad15 = body.newObject("PartDesign::Pad", "Pad014")
pad15.Profile = sketch15
pad15.Length = 1.8

# Sketch on XY plane
sketch16 = body.newObject("Sketcher::SketchObject", "Sketch015")
sketch16.AttachmentSupport = (doc.getObject("XY_Plane"), [""])
sketch16.MapMode = "FlatFace"
sketch16.AttachmentOffset = App.Placement(App.Vector(0, 0, 2), App.Rotation())
add_polygon(sketch16, [(27.5, 25.513181), (27.5, 10.513181), (28.3, 10.513181), (28.3, 25.513181)])  # lines 0-3
sketch16.addConstraint([
    Sketcher.Constraint("Vertical", 0),
    Sketcher.Constraint("Horizontal", 1),
    Sketcher.Constraint("Vertical", 2),
    Sketcher.Constraint("Horizontal", 3),
    Sketcher.Constraint("DistanceY", 0, 2, 0, 1, Q("15 mm")),
    Sketcher.Constraint("DistanceX", 1, 1, 1, 2, Q("0.8 mm")),
    Sketcher.Constraint("DistanceX", -1, 1, 0, 2, Q("27.5 mm")),
    Sketcher.Constraint("DistanceY", -1, 1, 0, 2, Q("10.513181 mm")),
])
pad16 = body.newObject("PartDesign::Pad", "Pad015")
pad16.Profile = sketch16
pad16.Length = 1.6

# Sketch on XY plane
sketch17 = body.newObject("Sketcher::SketchObject", "Sketch016")
sketch17.AttachmentSupport = (doc.getObject("XY_Plane"), [""])
sketch17.MapMode = "FlatFace"
sketch17.AttachmentOffset = App.Placement(App.Vector(0, 0, 2), App.Rotation())
add_polygon(sketch17, [(33.3, 25.513181), (33.3, 10.513181), (34, 10.513181), (34, 25.513181)])  # lines 0-3
sketch17.addConstraint([
    Sketcher.Constraint("Vertical", 0),
    Sketcher.Constraint("Horizontal", 1),
    Sketcher.Constraint("Vertical", 2),
    Sketcher.Constraint("Horizontal", 3),
    Sketcher.Constraint("DistanceY", 0, 2, 0, 1, Q("15 mm")),
    Sketcher.Constraint("DistanceX", 1, 1, 1, 2, Q("0.7 mm")),
    Sketcher.Constraint("DistanceX", -1, 1, 1, 2, Q("34 mm")),
    Sketcher.Constraint("DistanceY", -1, 1, 0, 2, Q("10.513181 mm")),
])
pad17 = body.newObject("PartDesign::Pad", "Pad016")
pad17.Profile = sketch17
pad17.Length = 1.4

# Sketch on XY plane
sketch18 = body.newObject("Sketcher::SketchObject", "Sketch017")
sketch18.AttachmentSupport = (doc.getObject("XY_Plane"), [""])
sketch18.MapMode = "FlatFace"
sketch18.AttachmentOffset = App.Placement(App.Vector(0, 0, 2), App.Rotation())
add_polygon(sketch18, [(39, 25.513181), (39, 10.513181), (39.6, 10.513181), (39.6, 25.513181)])  # lines 0-3
sketch18.addConstraint([
    Sketcher.Constraint("Vertical", 0),
    Sketcher.Constraint("Horizontal", 1),
    Sketcher.Constraint("Vertical", 2),
    Sketcher.Constraint("Horizontal", 3),
    Sketcher.Constraint("DistanceY", 0, 2, 0, 1, Q("15 mm")),
    Sketcher.Constraint("DistanceX", 1, 1, 1, 2, Q("0.6 mm")),
    Sketcher.Constraint("DistanceX", -1, 1, 0, 2, Q("39 mm")),
    Sketcher.Constraint("DistanceY", -1, 1, 0, 2, Q("10.513181 mm")),
])
pad18 = body.newObject("PartDesign::Pad", "Pad017")
pad18.Profile = sketch18
pad18.Length = 1.2

# Sketch on XY plane
sketch19 = body.newObject("Sketcher::SketchObject", "Sketch018")
sketch19.AttachmentSupport = (doc.getObject("XY_Plane"), [""])
sketch19.MapMode = "FlatFace"
sketch19.AttachmentOffset = App.Placement(App.Vector(0, 0, 2), App.Rotation())
add_polygon(sketch19, [(44.6, 25.513181), (44.6, 10.513181), (45.1, 10.513181), (45.1, 25.513181)])  # lines 0-3
sketch19.addConstraint([
    Sketcher.Constraint("Vertical", 0),
    Sketcher.Constraint("Horizontal", 1),
    Sketcher.Constraint("Vertical", 2),
    Sketcher.Constraint("Horizontal", 3),
    Sketcher.Constraint("DistanceY", 0, 2, 0, 1, Q("15 mm")),
    Sketcher.Constraint("DistanceX", 1, 1, 1, 2, Q("0.5 mm")),
    Sketcher.Constraint("DistanceX", -1, 1, 0, 2, Q("44.6 mm")),
    Sketcher.Constraint("DistanceY", -1, 1, 0, 2, Q("10.513181 mm")),
])
pad19 = body.newObject("PartDesign::Pad", "Pad018")
pad19.Profile = sketch19
pad19.Length = 1

# Sketch on XY plane
sketch20 = body.newObject("Sketcher::SketchObject", "Sketch019")
sketch20.AttachmentSupport = (doc.getObject("XY_Plane"), [""])
sketch20.MapMode = "FlatFace"
sketch20.AttachmentOffset = App.Placement(App.Vector(0, 0, 2), App.Rotation())
add_polygon(sketch20, [(50.1, 25.513181), (50.1, 10.513181), (50.5, 10.513181), (50.5, 25.513181)])  # lines 0-3
sketch20.addConstraint([
    Sketcher.Constraint("Vertical", 0),
    Sketcher.Constraint("Horizontal", 1),
    Sketcher.Constraint("Vertical", 2),
    Sketcher.Constraint("Horizontal", 3),
    Sketcher.Constraint("DistanceY", 0, 2, 0, 1, Q("15 mm")),
    Sketcher.Constraint("DistanceX", 1, 1, 1, 2, Q("0.4 mm")),
    Sketcher.Constraint("DistanceX", -1, 1, 0, 2, Q("50.1 mm")),
    Sketcher.Constraint("DistanceY", -1, 1, 0, 2, Q("10.513181 mm")),
])
pad20 = body.newObject("PartDesign::Pad", "Pad019")
pad20.Profile = sketch20
pad20.Length = 0.8

# Sketch on XY plane
sketch21 = body.newObject("Sketcher::SketchObject", "Sketch020")
sketch21.AttachmentSupport = (doc.getObject("XY_Plane"), [""])
sketch21.MapMode = "FlatFace"
sketch21.AttachmentOffset = App.Placement(App.Vector(0, 0, 2), App.Rotation())
add_polygon(sketch21, [(55.1, 25.513181), (55.1, 10.513181), (55.4, 10.513181), (55.4, 25.513181)])  # lines 0-3
sketch21.addConstraint([
    Sketcher.Constraint("Vertical", 0),
    Sketcher.Constraint("Horizontal", 1),
    Sketcher.Constraint("Vertical", 2),
    Sketcher.Constraint("Horizontal", 3),
    Sketcher.Constraint("DistanceY", 0, 2, 0, 1, Q("15 mm")),
    Sketcher.Constraint("DistanceX", 1, 1, 1, 2, Q("0.3 mm")),
    Sketcher.Constraint("DistanceX", -1, 1, 0, 2, Q("55.1 mm")),
    Sketcher.Constraint("DistanceY", -1, 1, 0, 2, Q("10.513181 mm")),
])
pad21 = body.newObject("PartDesign::Pad", "Pad020")
pad21.Profile = sketch21
pad21.Length = 0.6

# Sketch on XY plane
sketch22 = body.newObject("Sketcher::SketchObject", "Sketch021")
sketch22.AttachmentSupport = (doc.getObject("XY_Plane"), [""])
sketch22.MapMode = "FlatFace"
sketch22.AttachmentOffset = App.Placement(App.Vector(0, 0, 2), App.Rotation())
add_polygon(sketch22, [(60.4, 25.513181), (60.4, 10.513181), (60.6, 10.513181), (60.6, 25.513181)])  # lines 0-3
sketch22.addConstraint([
    Sketcher.Constraint("Vertical", 0),
    Sketcher.Constraint("Horizontal", 1),
    Sketcher.Constraint("Vertical", 2),
    Sketcher.Constraint("Horizontal", 3),
    Sketcher.Constraint("DistanceY", 0, 2, 0, 1, Q("15 mm")),
    Sketcher.Constraint("DistanceX", 1, 1, 1, 2, Q("0.2 mm")),
    Sketcher.Constraint("DistanceX", -1, 1, 0, 2, Q("60.4 mm")),
    Sketcher.Constraint("DistanceY", -1, 1, 0, 2, Q("10.513181 mm")),
])
pad22 = body.newObject("PartDesign::Pad", "Pad021")
pad22.Profile = sketch22
pad22.Length = 0.4

# Sketch on XY plane
sketch23 = body.newObject("Sketcher::SketchObject", "Sketch022")
sketch23.AttachmentSupport = (doc.getObject("XY_Plane"), [""])
sketch23.MapMode = "FlatFace"
sketch23.AttachmentOffset = App.Placement(App.Vector(0, 0, 2), App.Rotation())
add_polygon(sketch23, [(65.6, 25.513181), (65.6, 10.513181), (65.7, 10.513181), (65.7, 25.513181)])  # lines 0-3
sketch23.addConstraint([
    Sketcher.Constraint("Vertical", 0),
    Sketcher.Constraint("Horizontal", 1),
    Sketcher.Constraint("Vertical", 2),
    Sketcher.Constraint("Horizontal", 3),
    Sketcher.Constraint("DistanceY", 0, 2, 0, 1, Q("15 mm")),
    Sketcher.Constraint("DistanceX", 1, 1, 1, 2, Q("0.1 mm")),
    Sketcher.Constraint("DistanceX", -1, 1, 0, 2, Q("65.6 mm")),
    Sketcher.Constraint("DistanceY", -1, 1, 0, 2, Q("10.513181 mm")),
])
pad23 = body.newObject("PartDesign::Pad", "Pad022")
pad23.Profile = sketch23
pad23.Length = 0.2

# Sketch on XY plane
sketch24 = body.newObject("Sketcher::SketchObject", "Sketch023")
sketch24.AttachmentSupport = (doc.getObject("XY_Plane"), [""])
sketch24.MapMode = "FlatFace"
sketch24.AttachmentOffset = App.Placement(App.Vector(0, 0, 2), App.Rotation())
add_polygon(sketch24, [(70.7, 25.513181), (70.7, 10.513181), (70.775, 10.513181), (70.775, 25.513181)])  # lines 0-3
sketch24.addConstraint([
    Sketcher.Constraint("Vertical", 0),
    Sketcher.Constraint("Horizontal", 1),
    Sketcher.Constraint("Vertical", 2),
    Sketcher.Constraint("Horizontal", 3),
    Sketcher.Constraint("DistanceY", 0, 2, 0, 1, Q("15 mm")),
    Sketcher.Constraint("DistanceX", -1, 1, 0, 2, Q("70.7 mm")),
    Sketcher.Constraint("DistanceX", 1, 1, 1, 2, Q("0.075 mm")),
    Sketcher.Constraint("DistanceY", -1, 1, 0, 2, Q("10.513181 mm")),
])
pad24 = body.newObject("PartDesign::Pad", "Pad023")
pad24.Profile = sketch24
pad24.Length = 0.15

# Sketch on XY plane
sketch25 = body.newObject("Sketcher::SketchObject", "Sketch024")
sketch25.AttachmentSupport = (doc.getObject("XY_Plane"), [""])
sketch25.MapMode = "FlatFace"
sketch25.AttachmentOffset = App.Placement(App.Vector(0, 0, 2), App.Rotation())
add_polygon(sketch25, [(75.775, 25.513181), (75.775, 10.513181), (75.825, 10.513181), (75.825, 25.513181)])  # lines 0-3
sketch25.addConstraint([
    Sketcher.Constraint("Vertical", 0),
    Sketcher.Constraint("Horizontal", 1),
    Sketcher.Constraint("Vertical", 2),
    Sketcher.Constraint("Horizontal", 3),
    Sketcher.Constraint("DistanceY", 0, 2, 0, 1, Q("15 mm")),
    Sketcher.Constraint("DistanceX", 1, 1, 1, 2, Q("0.05 mm")),
    Sketcher.Constraint("DistanceX", -1, 1, 0, 2, Q("75.775 mm")),
    Sketcher.Constraint("DistanceY", -1, 1, 0, 2, Q("10.513181 mm")),
])
pad25 = body.newObject("PartDesign::Pad", "Pad024")
pad25.Profile = sketch25
pad25.Length = 0.1

doc.recompute()
